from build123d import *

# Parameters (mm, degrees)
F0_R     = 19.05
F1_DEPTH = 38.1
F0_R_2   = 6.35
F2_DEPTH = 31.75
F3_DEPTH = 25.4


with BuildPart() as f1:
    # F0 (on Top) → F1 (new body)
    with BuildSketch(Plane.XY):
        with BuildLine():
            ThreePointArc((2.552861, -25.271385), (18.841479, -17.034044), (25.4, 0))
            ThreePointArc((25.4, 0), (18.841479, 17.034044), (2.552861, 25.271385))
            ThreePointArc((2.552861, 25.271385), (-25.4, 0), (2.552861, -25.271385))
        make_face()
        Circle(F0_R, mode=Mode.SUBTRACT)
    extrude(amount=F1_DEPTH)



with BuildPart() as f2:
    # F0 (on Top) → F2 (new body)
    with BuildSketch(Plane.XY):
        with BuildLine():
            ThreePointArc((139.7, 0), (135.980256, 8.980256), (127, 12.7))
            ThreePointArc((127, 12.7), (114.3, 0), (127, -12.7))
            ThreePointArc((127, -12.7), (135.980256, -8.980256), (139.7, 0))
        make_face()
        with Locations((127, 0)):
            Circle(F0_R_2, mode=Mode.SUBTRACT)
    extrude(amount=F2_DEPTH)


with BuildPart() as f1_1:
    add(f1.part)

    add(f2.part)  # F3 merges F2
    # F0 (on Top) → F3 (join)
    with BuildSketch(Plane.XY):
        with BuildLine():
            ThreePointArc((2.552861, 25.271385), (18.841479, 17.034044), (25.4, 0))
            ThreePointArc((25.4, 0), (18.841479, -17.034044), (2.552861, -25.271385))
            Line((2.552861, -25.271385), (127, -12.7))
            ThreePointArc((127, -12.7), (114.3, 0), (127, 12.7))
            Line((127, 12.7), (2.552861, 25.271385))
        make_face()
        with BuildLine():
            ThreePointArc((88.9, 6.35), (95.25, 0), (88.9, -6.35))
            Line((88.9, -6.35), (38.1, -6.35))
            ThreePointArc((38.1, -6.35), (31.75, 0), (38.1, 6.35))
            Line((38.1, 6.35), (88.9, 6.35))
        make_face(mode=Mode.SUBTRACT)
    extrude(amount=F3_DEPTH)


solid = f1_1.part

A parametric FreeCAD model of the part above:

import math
import FreeCAD as App
import Part
import Sketcher
Q = App.Units.Quantity

doc = App.newDocument("Part")
body = doc.addObject("PartDesign::Body", "Body")

sketch1 = body.newObject("Sketcher::SketchObject", "Sketch")
sketch1.AttachmentSupport = (doc.getObject("XY_Plane"), [""])
sketch1.MapMode = "FlatFace"
sketch1.addGeometry(Part.ArcOfCircle(Part.Circle(App.Vector(0, 0, 0), App.Vector(0, 0, 1), 25), math.radians(-84), math.radians(0)), False)
sketch1.addGeometry(Part.ArcOfCircle(Part.Circle(App.Vector(0, 0, 0), App.Vector(0, 0, 1), 25), math.radians(0), math.radians(84)), False)
sketch1.addGeometry(Part.ArcOfCircle(Part.Circle(App.Vector(0, 0, 0), App.Vector(0, 0, 1), 25), math.radians(84), math.radians(276)), False)
sketch1.addGeometry(Part.Circle(App.Vector(0, 0, 0), App.Vector(0, 0, 1), 19), False)
sketch1.addConstraint(Sketcher.Constraint("Tangent", 0, 2, 1, 1))
sketch1.addConstraint(Sketcher.Constraint("Tangent", 1, 2, 2, 1))
sketch1.addConstraint(Sketcher.Constraint("Tangent", 2, 2, 0, 1))
sketch1.addConstraint(Sketcher.Constraint("Coincident", 0, 3, -1, 1))
sketch1.addConstraint(Sketcher.Constraint("Coincident", 3, 3, -1, 1))
sketch1.addConstraint(Sketcher.Constraint("PointOnObject", 0, 2, -1))
sketch1.addConstraint(Sketcher.Constraint("Vertical", 1, 2, 2, 2))
sketch1.addConstraint(Sketcher.Constraint("Radius", 0, Q("1 in")))
sketch1.addConstraint(Sketcher.Constraint("Diameter", 3, Q("1.5 in")))
sketch1.addConstraint(Sketcher.Constraint("DistanceX", -1, 1, 1, 2, Q("2.552861 mm")))
pad1 = body.newObject("PartDesign::Pad", "Pad")
pad1.Profile = sketch1
pad1.Length = Q("1.5 in")
body2 = doc.addObject("PartDesign::Body", "Body001")

sketch2 = body2.newObject("Sketcher::SketchObject", "Sketch001")
sketch2.AttachmentSupport = (doc.getObject("XY_Plane001"), [""])
sketch2.MapMode = "FlatFace"
sketch2.addGeometry(Part.ArcOfCircle(Part.Circle(App.Vector(127, 0, 0), App.Vector(0, 0, 1), 13), math.radians(0), math.radians(90)), False)
sketch2.addGeometry(Part.ArcOfCircle(Part.Circle(App.Vector(127, 0, 0), App.Vector(0, 0, 1), 13), math.radians(90), math.radians(270)), False)
sketch2.addGeometry(Part.ArcOfCircle(Part.Circle(App.Vector(127, 0, 0), App.Vector(0, 0, 1), 13), math.radians(-90), math.radians(0)), False)
sketch2.addGeometry(Part.Circle(App.Vector(127, 0, 0), App.Vector(0, 0, 1), 6), False)
sketch2.addConstraint(Sketcher.Constraint("Tangent", 0, 2, 1, 1))
sketch2.addConstraint(Sketcher.Constraint("Tangent", 1, 2, 2, 1))
sketch2.addConstraint(Sketcher.Constraint("Tangent", 2, 2, 0, 1))
sketch2.addConstraint(Sketcher.Constraint("Coincident", 3, 3, 0, 3))
sketch2.addConstraint(Sketcher.Constraint("Symmetric", 0, 2, 1, 2, -1))
sketch2.addConstraint(Sketcher.Constraint("PointOnObject", 2, 2, -1))
sketch2.addConstraint(Sketcher.Constraint("Vertical", 3, 3, 0, 2))
sketch2.addConstraint(Sketcher.Constraint("Diameter", 3, Q("0.5 in")))
sketch2.addConstraint(Sketcher.Constraint("Radius", 0, Q("0.5 in")))
sketch2.addConstraint(Sketcher.Constraint("DistanceX", -1, 1, 0, 3, Q("5 in")))
pad2 = body2.newObject("PartDesign::Pad", "Pad001")
pad2.Profile = sketch2
pad2.Length = Q("1.25 in")
body.AllowCompound = True
doc.recompute()

boolean = body.newObject("PartDesign::Boolean", "Boolean")
boolean.Type = "Fuse"
boolean.addObjects([body2])

sketch3 = body.newObject("Sketcher::SketchObject", "Sketch002")
sketch3.AttachmentSupport = (doc.getObject("XY_Plane"), [""])
sketch3.MapMode = "FlatFace"
sketch3.addGeometry(Part.ArcOfCircle(Part.Circle(App.Vector(0, 0, 0), App.Vector(0, 0, 1), 25), math.radians(0), math.radians(84)), False)
sketch3.addGeometry(Part.ArcOfCircle(Part.Circle(App.Vector(0, 0, 0), App.Vector(0, 0, 1), 25), math.radians(-84), math.radians(0)), False)
sketch3.addGeometry(Part.LineSegment(App.Vector(3, -25, 0), App.Vector(127, -13, 0)), False)
sketch3.addGeometry(Part.ArcOfCircle(Part.Circle(App.Vector(127, 0, 0), App.Vector(0, 0, 1), 13), math.radians(90), math.radians(270)), False)
sketch3.addGeometry(Part.LineSegment(App.Vector(127, 13, 0), App.Vector(3, 25, 0)), False)
sketch3.addGeometry(Part.LineSegment(App.Vector(38, 6, 0), App.Vector(89, 6, 0)), False)
sketch3.addGeometry(Part.ArcOfCircle(Part.Circle(App.Vector(89, 0, 0), App.Vector(0, 0, 1), 6), math.radians(-90), math.radians(90)), False)
sketch3.addGeometry(Part.LineSegment(App.Vector(89, -6, 0), App.Vector(38, -6, 0)), False)
sketch3.addGeometry(Part.ArcOfCircle(Part.Circle(App.Vector(38, 0, 0), App.Vector(0, 0, 1), 6), math.radians(90), math.radians(270)), False)
sketch3.addConstraint(Sketcher.Constraint("Tangent", 0, 1, 1, 2))
sketch3.addConstraint(Sketcher.Constraint("Tangent", 1, 1, 2, 1))
sketch3.addConstraint(Sketcher.Constraint("Coincident", 2, 2, 3, 2))
sketch3.addConstraint(Sketcher.Constraint("Coincident", 3, 1, 4, 1))
sketch3.addConstraint(Sketcher.Constraint("Tangent", 4, 2, 0, 2))
sketch3.addConstraint(Sketcher.Constraint("Tangent", 5, 2, 6, 2))
sketch3.addConstraint(Sketcher.Constraint("Tangent", 6, 1, 7, 1))
sketch3.addConstraint(Sketcher.Constraint("Tangent", 7, 2, 8, 2))
sketch3.addConstraint(Sketcher.Constraint("Tangent", 8, 1, 5, 1))
sketch3.addConstraint(Sketcher.Constraint("Horizontal", 5))
sketch3.addConstraint(Sketcher.Constraint("Horizontal", 7))
sketch3.addConstraint(Sketcher.Constraint("Coincident", 0, 3, -1, 1))
sketch3.addConstraint(Sketcher.Constraint("Equal", 0, 1))
sketch3.addConstraint(Sketcher.Constraint("Symmetric", 2, 2, 3, 1, -1))
sketch3.addConstraint(Sketcher.Constraint("PointOnObject", 6, 3, -1))
sketch3.addConstraint(Sketcher.Constraint("PointOnObject", 0, 1, -1))
sketch3.addConstraint(Sketcher.Constraint("Vertical", 3, 3, 2, 2))
sketch3.addConstraint(Sketcher.Constraint("Radius", 0, Q("1 in")))
sketch3.addConstraint(Sketcher.Constraint("Radius", 3, Q("0.5 in")))
sketch3.addConstraint(Sketcher.Constraint("DistanceX", 5, 1, 5, 2, Q("2 in")))
sketch3.addConstraint(Sketcher.Constraint("Radius", 6, Q("0.25 in")))
sketch3.addConstraint(Sketcher.Constraint("DistanceX", -1, 1, 3, 3, Q("5 in")))
sketch3.addConstraint(Sketcher.Constraint("DistanceX", -1, 1, 6, 3, Q("3.5 in")))
pad3 = body.newObject("PartDesign::Pad", "Pad002")
pad3.Profile = sketch3
pad3.Length = Q("1 in")

doc.recompute()
